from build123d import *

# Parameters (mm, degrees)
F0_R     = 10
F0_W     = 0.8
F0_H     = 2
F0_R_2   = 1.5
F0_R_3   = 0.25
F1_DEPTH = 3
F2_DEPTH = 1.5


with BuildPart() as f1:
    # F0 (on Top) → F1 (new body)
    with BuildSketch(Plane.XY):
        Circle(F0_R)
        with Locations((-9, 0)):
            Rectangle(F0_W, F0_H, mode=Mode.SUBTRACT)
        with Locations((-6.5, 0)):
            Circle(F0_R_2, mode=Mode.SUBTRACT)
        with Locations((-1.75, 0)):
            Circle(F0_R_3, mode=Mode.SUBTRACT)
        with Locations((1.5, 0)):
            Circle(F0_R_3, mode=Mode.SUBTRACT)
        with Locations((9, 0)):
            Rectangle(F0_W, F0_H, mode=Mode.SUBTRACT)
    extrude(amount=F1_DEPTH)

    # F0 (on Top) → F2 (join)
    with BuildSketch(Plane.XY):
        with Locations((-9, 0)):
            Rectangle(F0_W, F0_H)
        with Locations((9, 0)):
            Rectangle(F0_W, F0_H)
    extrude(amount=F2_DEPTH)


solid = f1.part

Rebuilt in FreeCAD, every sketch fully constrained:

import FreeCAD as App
import Part
import Sketcher
from FreeCAD import Vector

doc = App.newDocument("Part")
params = doc.addObject("Spreadsheet::Sheet", "Params")
for row, (alias, value) in enumerate([
    ("sketch1_diameter", "20 mm"),
    ("sketch1_diameter2", "3 mm"),
    ("sketch1_diameter3", "0.5 mm"),
    ("sketch1_height", "2 mm"),
    ("sketch1_width", "0.8 mm"),
    ("pad1_length", "3 mm"),
    ("sketch2_height", "2 mm"),
    ("sketch2_width", "0.8 mm"),
    ("pad2_length", "1.5 mm"),
], start=1):
    params.set(f"A{row}", alias)
    params.set(f"B{row}", "=" + value)
    params.setAlias(f"B{row}", alias)

body = doc.addObject("PartDesign::Body", "Body")

sketch1 = body.newObject("Sketcher::SketchObject", "Sketch")
sketch1.AttachmentSupport = (doc.getObject("XY_Plane"), [""])
sketch1.MapMode = "FlatFace"
sketch1.addGeometry(Part.Circle(Vector(0, 0, 0), Vector(0, 0, 1), 10), False)
sketch1.addGeometry(Part.LineSegment(Vector(-8.6, -1, 0), Vector(-9.4, -1, 0)), False)
sketch1.addGeometry(Part.LineSegment(Vector(-9.4, -1, 0), Vector(-9.4, 1, 0)), False)
sketch1.addGeometry(Part.LineSegment(Vector(-9.4, 1, 0), Vector(-8.6, 1, 0)), False)
sketch1.addGeometry(Part.LineSegment(Vector(-8.6, 1, 0), Vector(-8.6, -1, 0)), False)
sketch1.addGeometry(Part.Circle(Vector(-6.5, 0, 0), Vector(0, 0, 1), 1.5), False)
sketch1.addGeometry(Part.Circle(Vector(-1.75, 0, 0), Vector(0, 0, 1), 0.25), False)
sketch1.addGeometry(Part.Circle(Vector(1.5, 0, 0), Vector(0, 0, 1), 0.25), False)
sketch1.addGeometry(Part.LineSegment(Vector(9.4, -1, 0), Vector(8.6, -1, 0)), False)
sketch1.addGeometry(Part.LineSegment(Vector(8.6, -1, 0), Vector(8.6, 1, 0)), False)
sketch1.addGeometry(Part.LineSegment(Vector(8.6, 1, 0), Vector(9.4, 1, 0)), False)
sketch1.addGeometry(Part.LineSegment(Vector(9.4, 1, 0), Vector(9.4, -1, 0)), False)
sketch1.addConstraint(Sketcher.Constraint("Coincident", 1, 2, 2, 1))
sketch1.addConstraint(Sketcher.Constraint("Coincident", 2, 2, 3, 1))
sketch1.addConstraint(Sketcher.Constraint("Coincident", 3, 2, 4, 1))
sketch1.addConstraint(Sketcher.Constraint("Coincident", 4, 2, 1, 1))
sketch1.addConstraint(Sketcher.Constraint("Coincident", 8, 2, 9, 1))
sketch1.addConstraint(Sketcher.Constraint("Coincident", 9, 2, 10, 1))
sketch1.addConstraint(Sketcher.Constraint("Coincident", 10, 2, 11, 1))
sketch1.addConstraint(Sketcher.Constraint("Coincident", 11, 2, 8, 1))
sketch1.addConstraint(Sketcher.Constraint("Horizontal", 1))
sketch1.addConstraint(Sketcher.Constraint("Vertical", 2))
sketch1.addConstraint(Sketcher.Constraint("Horizontal", 3))
sketch1.addConstraint(Sketcher.Constraint("Vertical", 4))
sketch1.addConstraint(Sketcher.Constraint("Horizontal", 8))
sketch1.addConstraint(Sketcher.Constraint("Vertical", 9))
sketch1.addConstraint(Sketcher.Constraint("Horizontal", 10))
sketch1.addConstraint(Sketcher.Constraint("Vertical", 11))
sketch1.addConstraint(Sketcher.Constraint("Coincident", 0, 3, -1, 1))
sketch1.addConstraint(Sketcher.Constraint("Equal", 6, 7))
sketch1.addConstraint(Sketcher.Constraint("Symmetric", 3, 2, 8, 2, -1, 1))
sketch1.addConstraint(Sketcher.Constraint("Symmetric", 1, 2, 10, 2, -1, 1))
sketch1.addConstraint(Sketcher.Constraint("PointOnObject", 5, 3, -1))
sketch1.addConstraint(Sketcher.Constraint("PointOnObject", 6, 3, -1))
sketch1.addConstraint(Sketcher.Constraint("PointOnObject", 7, 3, -1))
sketch1.addConstraint(Sketcher.Constraint("Horizontal", 4, 2, 8, 2))
sketch1.addConstraint(Sketcher.Constraint("Diameter", 0, 20.0))
sketch1.addConstraint(Sketcher.Constraint("Diameter", 5, 3.0))
sketch1.addConstraint(Sketcher.Constraint("Diameter", 6, 0.5))
sketch1.addConstraint(Sketcher.Constraint("DistanceY", 2, 1, 2, 2, 2.0))
sketch1.addConstraint(Sketcher.Constraint("DistanceX", 1, 2, 1, 1, 0.8))
sketch1.addConstraint(Sketcher.Constraint("DistanceX", 5, 3, 7, 3, 8.0))
sketch1.addConstraint(Sketcher.Constraint("DistanceX", 5, 3, -1, 1, 6.5))
sketch1.addConstraint(Sketcher.Constraint("DistanceX", 1, 2, -1, 1, 9.4))
sketch1.addConstraint(Sketcher.Constraint("DistanceX", 6, 3, -1, 1, 1.75))
sketch1.setExpression("Constraints[24]", "Params.sketch1_diameter")
sketch1.setExpression("Constraints[25]", "Params.sketch1_diameter2")
sketch1.setExpression("Constraints[26]", "Params.sketch1_diameter3")
sketch1.setExpression("Constraints[27]", "Params.sketch1_height")
sketch1.setExpression("Constraints[28]", "Params.sketch1_width")
pad1 = body.newObject("PartDesign::Pad", "Pad")
pad1.Profile = sketch1
pad1.setExpression("Length", "Params.pad1_length")

sketch2 = body.newObject("Sketcher::SketchObject", "Sketch001")
sketch2.AttachmentSupport = (doc.getObject("XY_Plane"), [""])
sketch2.MapMode = "FlatFace"
sketch2.addGeometry(Part.LineSegment(Vector(-9.4, 1, 0), Vector(-9.4, -1, 0)), False)
sketch2.addGeometry(Part.LineSegment(Vector(-9.4, -1, 0), Vector(-8.6, -1, 0)), False)
sketch2.addGeometry(Part.LineSegment(Vector(-8.6, -1, 0), Vector(-8.6, 1, 0)), False)
sketch2.addGeometry(Part.LineSegment(Vector(-8.6, 1, 0), Vector(-9.4, 1, 0)), False)
sketch2.addGeometry(Part.LineSegment(Vector(8.6, 1, 0), Vector(8.6, -1, 0)), False)
sketch2.addGeometry(Part.LineSegment(Vector(8.6, -1, 0), Vector(9.4, -1, 0)), False)
sketch2.addGeometry(Part.LineSegment(Vector(9.4, -1, 0), Vector(9.4, 1, 0)), False)
sketch2.addGeometry(Part.LineSegment(Vector(9.4, 1, 0), Vector(8.6, 1, 0)), False)
sketch2.addConstraint(Sketcher.Constraint("Coincident", 0, 2, 1, 1))
sketch2.addConstraint(Sketcher.Constraint("Coincident", 1, 2, 2, 1))
sketch2.addConstraint(Sketcher.Constraint("Coincident", 2, 2, 3, 1))
sketch2.addConstraint(Sketcher.Constraint("Coincident", 3, 2, 0, 1))
sketch2.addConstraint(Sketcher.Constraint("Coincident", 4, 2, 5, 1))
sketch2.addConstraint(Sketcher.Constraint("Coincident", 5, 2, 6, 1))
sketch2.addConstraint(Sketcher.Constraint("Coincident", 6, 2, 7, 1))
sketch2.addConstraint(Sketcher.Constraint("Coincident", 7, 2, 4, 1))
sketch2.addConstraint(Sketcher.Constraint("Vertical", 0))
sketch2.addConstraint(Sketcher.Constraint("Horizontal", 1))
sketch2.addConstraint(Sketcher.Constraint("Vertical", 2))
sketch2.addConstraint(Sketcher.Constraint("Horizontal", 3))
sketch2.addConstraint(Sketcher.Constraint("Vertical", 4))
sketch2.addConstraint(Sketcher.Constraint("Horizontal", 5))
sketch2.addConstraint(Sketcher.Constraint("Vertical", 6))
sketch2.addConstraint(Sketcher.Constraint("Horizontal", 7))
sketch2.addConstraint(Sketcher.Constraint("Symmetric", 2, 2, 4, 2, -1, 1))
sketch2.addConstraint(Sketcher.Constraint("Symmetric", 0, 2, 6, 2, -1, 1))
sketch2.addConstraint(Sketcher.Constraint("Horizontal", 1, 2, 4, 2))
sketch2.addConstraint(Sketcher.Constraint("DistanceY", 0, 2, 0, 1, 2.0))
sketch2.addConstraint(Sketcher.Constraint("DistanceX", 1, 1, 1, 2, 0.8))
sketch2.addConstraint(Sketcher.Constraint("DistanceX", 0, 2, 4, 2, 18.0))
sketch2.setExpression("Constraints[19]", "Params.sketch2_height")
sketch2.setExpression("Constraints[20]", "Params.sketch2_width")
pad2 = body.newObject("PartDesign::Pad", "Pad001")
pad2.Profile = sketch2
pad2.setExpression("Length", "Params.pad2_length")

doc.recompute()
